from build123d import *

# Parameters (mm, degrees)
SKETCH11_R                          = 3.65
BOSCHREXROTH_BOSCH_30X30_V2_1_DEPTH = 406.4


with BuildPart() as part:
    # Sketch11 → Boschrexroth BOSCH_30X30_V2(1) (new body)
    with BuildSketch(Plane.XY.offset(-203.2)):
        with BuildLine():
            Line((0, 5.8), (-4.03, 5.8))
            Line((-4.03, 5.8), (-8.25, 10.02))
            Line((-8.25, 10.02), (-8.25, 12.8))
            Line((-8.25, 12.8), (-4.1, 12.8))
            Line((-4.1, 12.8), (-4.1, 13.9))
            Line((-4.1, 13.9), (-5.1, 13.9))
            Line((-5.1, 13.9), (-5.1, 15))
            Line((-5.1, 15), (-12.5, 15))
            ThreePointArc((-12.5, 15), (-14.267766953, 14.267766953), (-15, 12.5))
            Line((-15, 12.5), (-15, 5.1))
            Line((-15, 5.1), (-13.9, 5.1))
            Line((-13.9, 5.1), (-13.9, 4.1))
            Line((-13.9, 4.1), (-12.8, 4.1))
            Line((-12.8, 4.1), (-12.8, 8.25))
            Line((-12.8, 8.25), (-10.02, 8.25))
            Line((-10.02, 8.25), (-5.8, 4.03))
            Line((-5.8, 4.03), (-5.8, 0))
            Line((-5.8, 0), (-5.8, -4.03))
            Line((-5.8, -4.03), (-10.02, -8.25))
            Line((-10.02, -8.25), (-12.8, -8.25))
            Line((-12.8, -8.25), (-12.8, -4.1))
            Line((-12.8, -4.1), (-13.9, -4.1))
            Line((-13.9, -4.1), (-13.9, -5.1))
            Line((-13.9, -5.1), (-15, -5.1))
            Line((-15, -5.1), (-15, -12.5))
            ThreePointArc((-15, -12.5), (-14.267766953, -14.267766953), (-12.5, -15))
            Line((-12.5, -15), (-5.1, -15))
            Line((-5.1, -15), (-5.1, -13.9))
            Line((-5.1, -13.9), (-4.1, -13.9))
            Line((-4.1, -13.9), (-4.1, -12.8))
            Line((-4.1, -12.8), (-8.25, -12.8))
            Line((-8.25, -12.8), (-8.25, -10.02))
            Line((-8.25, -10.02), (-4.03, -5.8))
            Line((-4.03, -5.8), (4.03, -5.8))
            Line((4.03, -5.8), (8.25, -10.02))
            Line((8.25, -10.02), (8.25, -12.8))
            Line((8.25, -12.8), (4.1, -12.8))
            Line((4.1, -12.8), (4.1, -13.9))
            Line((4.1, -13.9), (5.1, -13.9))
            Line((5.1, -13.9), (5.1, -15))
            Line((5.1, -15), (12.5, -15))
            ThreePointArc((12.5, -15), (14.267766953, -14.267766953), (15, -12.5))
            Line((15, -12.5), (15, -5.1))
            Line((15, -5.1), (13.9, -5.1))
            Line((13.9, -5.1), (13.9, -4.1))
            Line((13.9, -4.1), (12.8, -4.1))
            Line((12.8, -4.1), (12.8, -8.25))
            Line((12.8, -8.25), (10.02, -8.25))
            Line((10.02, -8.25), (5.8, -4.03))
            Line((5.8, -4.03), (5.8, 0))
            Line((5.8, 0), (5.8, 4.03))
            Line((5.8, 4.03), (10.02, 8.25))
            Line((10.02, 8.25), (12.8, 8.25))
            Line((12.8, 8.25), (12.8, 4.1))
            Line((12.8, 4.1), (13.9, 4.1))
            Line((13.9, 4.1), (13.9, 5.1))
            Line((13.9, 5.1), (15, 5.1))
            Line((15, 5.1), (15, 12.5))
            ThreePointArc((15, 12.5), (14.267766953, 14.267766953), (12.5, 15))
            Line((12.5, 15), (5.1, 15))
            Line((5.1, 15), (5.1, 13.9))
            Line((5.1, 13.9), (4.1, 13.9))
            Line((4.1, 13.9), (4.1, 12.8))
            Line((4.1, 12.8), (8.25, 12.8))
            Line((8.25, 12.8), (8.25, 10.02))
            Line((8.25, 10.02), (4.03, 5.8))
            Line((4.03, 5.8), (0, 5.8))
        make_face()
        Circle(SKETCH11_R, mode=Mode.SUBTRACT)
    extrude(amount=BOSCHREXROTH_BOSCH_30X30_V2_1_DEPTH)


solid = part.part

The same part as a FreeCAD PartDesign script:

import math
import FreeCAD as App
import Part
import Sketcher
from FreeCAD import Vector

doc = App.newDocument("Part")
body = doc.addObject("PartDesign::Body", "Body")

# Sketch on XY plane
sketch1 = doc.addObject("Sketcher::SketchObject", "Sketch")
body.addObject(sketch1)
sketch1.AttachmentSupport = (doc.XY_Plane, [""])
sketch1.MapMode = "FlatFace"
sketch1.AttachmentOffset = App.Placement(Vector(0, 0, -203.2), App.Rotation())
sketch1.addGeometry([
    Part.LineSegment(Vector(-4, 5.8, 0), Vector(-8.2, 10, 0)),  # 0
    Part.LineSegment(Vector(-8.2, 10, 0), Vector(-8.2, 12.8, 0)),  # 1
    Part.LineSegment(Vector(-8.2, 12.8, 0), Vector(-4.1, 12.8, 0)),  # 2
    Part.LineSegment(Vector(-4.1, 12.8, 0), Vector(-4.1, 13.9, 0)),  # 3
    Part.LineSegment(Vector(-4.1, 13.9, 0), Vector(-5.1, 13.9, 0)),  # 4
    Part.LineSegment(Vector(-5.1, 13.9, 0), Vector(-5.1, 15, 0)),  # 5
    Part.LineSegment(Vector(-5.1, 15, 0), Vector(-12.5, 15, 0)),  # 6
    Part.ArcOfCircle(Part.Circle(Vector(-12.5, 12.5, 0), Vector(0, 0, 1), 2.5), math.radians(90), math.radians(180)),  # 7
    Part.LineSegment(Vector(-15, 12.5, 0), Vector(-15, 5.1, 0)),  # 8
    Part.LineSegment(Vector(-15, 5.1, 0), Vector(-13.9, 5.1, 0)),  # 9
    Part.LineSegment(Vector(-13.9, 5.1, 0), Vector(-13.9, 4.1, 0)),  # 10
    Part.LineSegment(Vector(-13.9, 4.1, 0), Vector(-12.8, 4.1, 0)),  # 11
    Part.LineSegment(Vector(-12.8, 4.1, 0), Vector(-12.8, 8.2, 0)),  # 12
    Part.LineSegment(Vector(-12.8, 8.2, 0), Vector(-10, 8.2, 0)),  # 13
    Part.LineSegment(Vector(-10, 8.2, 0), Vector(-5.8, 4, 0)),  # 14
    Part.LineSegment(Vector(-5.8, 4, 0), Vector(-5.8, -4, 0)),  # 15
    Part.LineSegment(Vector(-5.8, -4, 0), Vector(-10, -8.2, 0)),  # 16
    Part.LineSegment(Vector(-10, -8.2, 0), Vector(-12.8, -8.2, 0)),  # 17
    Part.LineSegment(Vector(-12.8, -8.2, 0), Vector(-12.8, -4.1, 0)),  # 18
    Part.LineSegment(Vector(-12.8, -4.1, 0), Vector(-13.9, -4.1, 0)),  # 19
    Part.LineSegment(Vector(-13.9, -4.1, 0), Vector(-13.9, -5.1, 0)),  # 20
    Part.LineSegment(Vector(-13.9, -5.1, 0), Vector(-15, -5.1, 0)),  # 21
    Part.LineSegment(Vector(-15, -5.1, 0), Vector(-15, -12.5, 0)),  # 22
    Part.ArcOfCircle(Part.Circle(Vector(-12.5, -12.5, 0), Vector(0, 0, 1), 2.5), math.radians(180), math.radians(270)),  # 23
    Part.LineSegment(Vector(-12.5, -15, 0), Vector(-5.1, -15, 0)),  # 24
    Part.LineSegment(Vector(-5.1, -15, 0), Vector(-5.1, -13.9, 0)),  # 25
    Part.LineSegment(Vector(-5.1, -13.9, 0), Vector(-4.1, -13.9, 0)),  # 26
    Part.LineSegment(Vector(-4.1, -13.9, 0), Vector(-4.1, -12.8, 0)),  # 27
    Part.LineSegment(Vector(-4.1, -12.8, 0), Vector(-8.2, -12.8, 0)),  # 28
    Part.LineSegment(Vector(-8.2, -12.8, 0), Vector(-8.2, -10, 0)),  # 29
    Part.LineSegment(Vector(-8.2, -10, 0), Vector(-4, -5.8, 0)),  # 30
    Part.LineSegment(Vector(-4, -5.8, 0), Vector(4, -5.8, 0)),  # 31
    Part.LineSegment(Vector(4, -5.8, 0), Vector(8.2, -10, 0)),  # 32
    Part.LineSegment(Vector(8.2, -10, 0), Vector(8.2, -12.8, 0)),  # 33
    Part.LineSegment(Vector(8.2, -12.8, 0), Vector(4.1, -12.8, 0)),  # 34
    Part.LineSegment(Vector(4.1, -12.8, 0), Vector(4.1, -13.9, 0)),  # 35
    Part.LineSegment(Vector(4.1, -13.9, 0), Vector(5.1, -13.9, 0)),  # 36
    Part.LineSegment(Vector(5.1, -13.9, 0), Vector(5.1, -15, 0)),  # 37
    Part.LineSegment(Vector(5.1, -15, 0), Vector(12.5, -15, 0)),  # 38
    Part.ArcOfCircle(Part.Circle(Vector(12.5, -12.5, 0), Vector(0, 0, 1), 2.5), math.radians(-90), math.radians(0)),  # 39
    Part.LineSegment(Vector(15, -12.5, 0), Vector(15, -5.1, 0)),  # 40
    Part.LineSegment(Vector(15, -5.1, 0), Vector(13.9, -5.1, 0)),  # 41
    Part.LineSegment(Vector(13.9, -5.1, 0), Vector(13.9, -4.1, 0)),  # 42
    Part.LineSegment(Vector(13.9, -4.1, 0), Vector(12.8, -4.1, 0)),  # 43
    Part.LineSegment(Vector(12.8, -4.1, 0), Vector(12.8, -8.2, 0)),  # 44
    Part.LineSegment(Vector(12.8, -8.2, 0), Vector(10, -8.2, 0)),  # 45
    Part.LineSegment(Vector(10, -8.2, 0), Vector(5.8, -4, 0)),  # 46
    Part.LineSegment(Vector(5.8, -4, 0), Vector(5.8, 4, 0)),  # 47
    Part.LineSegment(Vector(5.8, 4, 0), Vector(10, 8.2, 0)),  # 48
    Part.LineSegment(Vector(10, 8.2, 0), Vector(12.8, 8.2, 0)),  # 49
    Part.LineSegment(Vector(12.8, 8.2, 0), Vector(12.8, 4.1, 0)),  # 50
    Part.LineSegment(Vector(12.8, 4.1, 0), Vector(13.9, 4.1, 0)),  # 51
    Part.LineSegment(Vector(13.9, 4.1, 0), Vector(13.9, 5.1, 0)),  # 52
    Part.LineSegment(Vector(13.9, 5.1, 0), Vector(15, 5.1, 0)),  # 53
    Part.LineSegment(Vector(15, 5.1, 0), Vector(15, 12.5, 0)),  # 54
    Part.ArcOfCircle(Part.Circle(Vector(12.5, 12.5, 0), Vector(0, 0, 1), 2.5), math.radians(0), math.radians(90)),  # 55
    Part.LineSegment(Vector(12.5, 15, 0), Vector(5.1, 15, 0)),  # 56
    Part.LineSegment(Vector(5.1, 15, 0), Vector(5.1, 13.9, 0)),  # 57
    Part.LineSegment(Vector(5.1, 13.9, 0), Vector(4.1, 13.9, 0)),  # 58
    Part.LineSegment(Vector(4.1, 13.9, 0), Vector(4.1, 12.8, 0)),  # 59
    Part.LineSegment(Vector(4.1, 12.8, 0), Vector(8.2, 12.8, 0)),  # 60
    Part.LineSegment(Vector(8.2, 12.8, 0), Vector(8.2, 10, 0)),  # 61
    Part.LineSegment(Vector(8.2, 10, 0), Vector(4, 5.8, 0)),  # 62
    Part.LineSegment(Vector(4, 5.8, 0), Vector(-4, 5.8, 0)),  # 63
    Part.Circle(Vector(0, 0, 0), Vector(0, 0, 1), 3.6),  # 64
], False)
sketch1.addConstraint([
    Sketcher.Constraint("Coincident", 0, 2, 1, 1),
    Sketcher.Constraint("Coincident", 1, 2, 2, 1),
    Sketcher.Constraint("Coincident", 2, 2, 3, 1),
    Sketcher.Constraint("Coincident", 3, 2, 4, 1),
    Sketcher.Constraint("Coincident", 4, 2, 5, 1),
    Sketcher.Constraint("Coincident", 5, 2, 6, 1),
    Sketcher.Constraint("Tangent", 6, 2, 7, 1),
    Sketcher.Constraint("Tangent", 7, 2, 8, 1),
    Sketcher.Constraint("Coincident", 8, 2, 9, 1),
    Sketcher.Constraint("Coincident", 9, 2, 10, 1),
    Sketcher.Constraint("Coincident", 10, 2, 11, 1),
    Sketcher.Constraint("Coincident", 11, 2, 12, 1),
    Sketcher.Constraint("Coincident", 12, 2, 13, 1),
    Sketcher.Constraint("Coincident", 13, 2, 14, 1),
    Sketcher.Constraint("Coincident", 14, 2, 15, 1),
    Sketcher.Constraint("Coincident", 15, 2, 16, 1),
    Sketcher.Constraint("Coincident", 16, 2, 17, 1),
    Sketcher.Constraint("Coincident", 17, 2, 18, 1),
    Sketcher.Constraint("Coincident", 18, 2, 19, 1),
    Sketcher.Constraint("Coincident", 19, 2, 20, 1),
    Sketcher.Constraint("Coincident", 20, 2, 21, 1),
    Sketcher.Constraint("Coincident", 21, 2, 22, 1),
    Sketcher.Constraint("Tangent", 22, 2, 23, 1),
    Sketcher.Constraint("Tangent", 23, 2, 24, 1),
    Sketcher.Constraint("Coincident", 24, 2, 25, 1),
    Sketcher.Constraint("Coincident", 25, 2, 26, 1),
    Sketcher.Constraint("Coincident", 26, 2, 27, 1),
    Sketcher.Constraint("Coincident", 27, 2, 28, 1),
    Sketcher.Constraint("Coincident", 28, 2, 29, 1),
    Sketcher.Constraint("Coincident", 29, 2, 30, 1),
    Sketcher.Constraint("Coincident", 30, 2, 31, 1),
    Sketcher.Constraint("Coincident", 31, 2, 32, 1),
    Sketcher.Constraint("Coincident", 32, 2, 33, 1),
    Sketcher.Constraint("Coincident", 33, 2, 34, 1),
    Sketcher.Constraint("Coincident", 34, 2, 35, 1),
    Sketcher.Constraint("Coincident", 35, 2, 36, 1),
    Sketcher.Constraint("Coincident", 36, 2, 37, 1),
    Sketcher.Constraint("Coincident", 37, 2, 38, 1),
    Sketcher.Constraint("Tangent", 38, 2, 39, 1),
    Sketcher.Constraint("Tangent", 39, 2, 40, 1),
    Sketcher.Constraint("Coincident", 40, 2, 41, 1),
    Sketcher.Constraint("Coincident", 41, 2, 42, 1),
    Sketcher.Constraint("Coincident", 42, 2, 43, 1),
    Sketcher.Constraint("Coincident", 43, 2, 44, 1),
    Sketcher.Constraint("Coincident", 44, 2, 45, 1),
    Sketcher.Constraint("Coincident", 45, 2, 46, 1),
    Sketcher.Constraint("Coincident", 46, 2, 47, 1),
    Sketcher.Constraint("Coincident", 47, 2, 48, 1),
    Sketcher.Constraint("Coincident", 48, 2, 49, 1),
    Sketcher.Constraint("Coincident", 49, 2, 50, 1),
    Sketcher.Constraint("Coincident", 50, 2, 51, 1),
    Sketcher.Constraint("Coincident", 51, 2, 52, 1),
    Sketcher.Constraint("Coincident", 52, 2, 53, 1),
    Sketcher.Constraint("Coincident", 53, 2, 54, 1),
    Sketcher.Constraint("Tangent", 54, 2, 55, 1),
    Sketcher.Constraint("Tangent", 55, 2, 56, 1),
    Sketcher.Constraint("Coincident", 56, 2, 57, 1),
    Sketcher.Constraint("Coincident", 57, 2, 58, 1),
    Sketcher.Constraint("Coincident", 58, 2, 59, 1),
    Sketcher.Constraint("Coincident", 59, 2, 60, 1),
    Sketcher.Constraint("Coincident", 60, 2, 61, 1),
    Sketcher.Constraint("Coincident", 61, 2, 62, 1),
    Sketcher.Constraint("Coincident", 62, 2, 63, 1),
    Sketcher.Constraint("Coincident", 63, 2, 0, 1),
    Sketcher.Constraint("Vertical", 1),
    Sketcher.Constraint("Horizontal", 2),
    Sketcher.Constraint("Vertical", 3),
    Sketcher.Constraint("Horizontal", 4),
    Sketcher.Constraint("Vertical", 5),
    Sketcher.Constraint("Horizontal", 6),
    Sketcher.Constraint("Vertical", 8),
    Sketcher.Constraint("Horizontal", 9),
    Sketcher.Constraint("Vertical", 10),
    Sketcher.Constraint("Horizontal", 11),
    Sketcher.Constraint("Vertical", 12),
    Sketcher.Constraint("Horizontal", 13),
    Sketcher.Constraint("Vertical", 15),
    Sketcher.Constraint("Horizontal", 17),
    Sketcher.Constraint("Vertical", 18),
    Sketcher.Constraint("Horizontal", 19),
    Sketcher.Constraint("Vertical", 20),
    Sketcher.Constraint("Horizontal", 21),
    Sketcher.Constraint("Vertical", 22),
    Sketcher.Constraint("Horizontal", 24),
    Sketcher.Constraint("Vertical", 25),
    Sketcher.Constraint("Horizontal", 26),
    Sketcher.Constraint("Vertical", 27),
    Sketcher.Constraint("Horizontal", 28),
    Sketcher.Constraint("Vertical", 29),
    Sketcher.Constraint("Horizontal", 31),
    Sketcher.Constraint("Vertical", 33),
    Sketcher.Constraint("Horizontal", 34),
    Sketcher.Constraint("Vertical", 35),
    Sketcher.Constraint("Horizontal", 36),
    Sketcher.Constraint("Vertical", 37),
    Sketcher.Constraint("Horizontal", 38),
    Sketcher.Constraint("Vertical", 40),
    Sketcher.Constraint("Horizontal", 41),
    Sketcher.Constraint("Vertical", 42),
    Sketcher.Constraint("Horizontal", 43),
    Sketcher.Constraint("Vertical", 44),
    Sketcher.Constraint("Horizontal", 45),
    Sketcher.Constraint("Vertical", 47),
    Sketcher.Constraint("Horizontal", 49),
    Sketcher.Constraint("Vertical", 50),
    Sketcher.Constraint("Horizontal", 51),
    Sketcher.Constraint("Vertical", 52),
    Sketcher.Constraint("Horizontal", 53),
    Sketcher.Constraint("Vertical", 54),
    Sketcher.Constraint("Horizontal", 56),
    Sketcher.Constraint("Vertical", 57),
    Sketcher.Constraint("Horizontal", 58),
    Sketcher.Constraint("Vertical", 59),
    Sketcher.Constraint("Horizontal", 60),
    Sketcher.Constraint("Vertical", 61),
    Sketcher.Constraint("Horizontal", 63),
    Sketcher.Constraint("Coincident", 64, 3, -1, 1),
    Sketcher.Constraint("Equal", 7, 23),
    Sketcher.Constraint("Equal", 23, 39),
    Sketcher.Constraint("Equal", 39, 55),
    Sketcher.Constraint("Symmetric", 7, 3, 39, 3, -1, 1),
    Sketcher.Constraint("Symmetric", 23, 3, 55, 3, -1, 1),
    Sketcher.Constraint("Symmetric", 0, 2, 32, 2, -1, 1),
    Sketcher.Constraint("Symmetric", 2, 2, 34, 2, -1, 1),
    Sketcher.Constraint("Symmetric", 4, 2, 36, 2, -1, 1),
    Sketcher.Constraint("Symmetric", 9, 2, 41, 2, -1, 1),
    Sketcher.Constraint("Symmetric", 11, 2, 43, 2, -1, 1),
    Sketcher.Constraint("Symmetric", 13, 2, 45, 2, -1, 1),
    Sketcher.Constraint("Symmetric", 14, 2, 46, 2, -1, 1),
    Sketcher.Constraint("Symmetric", 16, 2, 48, 2, -1, 1),
    Sketcher.Constraint("Symmetric", 18, 2, 50, 2, -1, 1),
    Sketcher.Constraint("Symmetric", 20, 2, 52, 2, -1, 1),
    Sketcher.Constraint("Symmetric", 25, 2, 57, 2, -1, 1),
    Sketcher.Constraint("Symmetric", 27, 2, 59, 2, -1, 1),
    Sketcher.Constraint("Symmetric", 29, 2, 61, 2, -1, 1),
    Sketcher.Constraint("Symmetric", 30, 2, 62, 2, -1, 1),
    Sketcher.Constraint("Symmetric", 23, 3, 39, 3, -2),
    Sketcher.Constraint("Symmetric", 29, 2, 32, 2, -2),
    Sketcher.Constraint("Symmetric", 27, 2, 34, 2, -2),
    Sketcher.Constraint("Symmetric", 25, 2, 36, 2, -2),
    Sketcher.Constraint("Symmetric", 20, 2, 41, 2, -2),
    Sketcher.Constraint("Symmetric", 18, 2, 43, 2, -2),
    Sketcher.Constraint("Symmetric", 16, 2, 45, 2, -2),
    Sketcher.Constraint("Parallel", 0, 14),
    Sketcher.Constraint("Perpendicular", 14, 16),
    Sketcher.Constraint("Parallel", 16, 30),
    Sketcher.Constraint("Perpendicular", 30, 32),
    Sketcher.Constraint("Perpendicular", 46, 48),
    Sketcher.Constraint("Horizontal", 15, 2, 46, 2),
    Sketcher.Constraint("Equal", 9, 11),
    Sketcher.Constraint("Equal", 49, 1),
    Sketcher.Constraint("Equal", 53, 3),
    Sketcher.Constraint("Equal", 3, 5),
    Sketcher.Constraint("Equal", 56, 8),
    Sketcher.Constraint("Equal", 58, 10),
    Sketcher.Constraint("Equal", 60, 12),
    Sketcher.Constraint("Equal", 63, 15),
    Sketcher.Constraint("Equal", 0, 14),
    Sketcher.Constraint("Diameter", 64, 7.3),
    Sketcher.Constraint("Radius", 7, 2.5),
    Sketcher.Constraint("DistanceX", 4, 2, 4, 1, 1.0),
    Sketcher.Constraint("DistanceX", 6, 2, 6, 1, 7.4),
    Sketcher.Constraint("DistanceX", 9, 1, 9, 2, 1.1),
    Sketcher.Constraint("DistanceY", -1, 1, 5, 2, 15.0),
    Sketcher.Constraint("DistanceX", 2, 1, 2, 2, 4.15),
    Sketcher.Constraint("DistanceX", 13, 1, 13, 2, 2.78),
    Sketcher.Constraint("DistanceX", 31, 1, 31, 2, 8.06),
])
pad1 = doc.addObject("PartDesign::Pad", "Pad")
body.addObject(pad1)
pad1.Profile = sketch1
pad1.Length = 406.4

doc.recompute()
